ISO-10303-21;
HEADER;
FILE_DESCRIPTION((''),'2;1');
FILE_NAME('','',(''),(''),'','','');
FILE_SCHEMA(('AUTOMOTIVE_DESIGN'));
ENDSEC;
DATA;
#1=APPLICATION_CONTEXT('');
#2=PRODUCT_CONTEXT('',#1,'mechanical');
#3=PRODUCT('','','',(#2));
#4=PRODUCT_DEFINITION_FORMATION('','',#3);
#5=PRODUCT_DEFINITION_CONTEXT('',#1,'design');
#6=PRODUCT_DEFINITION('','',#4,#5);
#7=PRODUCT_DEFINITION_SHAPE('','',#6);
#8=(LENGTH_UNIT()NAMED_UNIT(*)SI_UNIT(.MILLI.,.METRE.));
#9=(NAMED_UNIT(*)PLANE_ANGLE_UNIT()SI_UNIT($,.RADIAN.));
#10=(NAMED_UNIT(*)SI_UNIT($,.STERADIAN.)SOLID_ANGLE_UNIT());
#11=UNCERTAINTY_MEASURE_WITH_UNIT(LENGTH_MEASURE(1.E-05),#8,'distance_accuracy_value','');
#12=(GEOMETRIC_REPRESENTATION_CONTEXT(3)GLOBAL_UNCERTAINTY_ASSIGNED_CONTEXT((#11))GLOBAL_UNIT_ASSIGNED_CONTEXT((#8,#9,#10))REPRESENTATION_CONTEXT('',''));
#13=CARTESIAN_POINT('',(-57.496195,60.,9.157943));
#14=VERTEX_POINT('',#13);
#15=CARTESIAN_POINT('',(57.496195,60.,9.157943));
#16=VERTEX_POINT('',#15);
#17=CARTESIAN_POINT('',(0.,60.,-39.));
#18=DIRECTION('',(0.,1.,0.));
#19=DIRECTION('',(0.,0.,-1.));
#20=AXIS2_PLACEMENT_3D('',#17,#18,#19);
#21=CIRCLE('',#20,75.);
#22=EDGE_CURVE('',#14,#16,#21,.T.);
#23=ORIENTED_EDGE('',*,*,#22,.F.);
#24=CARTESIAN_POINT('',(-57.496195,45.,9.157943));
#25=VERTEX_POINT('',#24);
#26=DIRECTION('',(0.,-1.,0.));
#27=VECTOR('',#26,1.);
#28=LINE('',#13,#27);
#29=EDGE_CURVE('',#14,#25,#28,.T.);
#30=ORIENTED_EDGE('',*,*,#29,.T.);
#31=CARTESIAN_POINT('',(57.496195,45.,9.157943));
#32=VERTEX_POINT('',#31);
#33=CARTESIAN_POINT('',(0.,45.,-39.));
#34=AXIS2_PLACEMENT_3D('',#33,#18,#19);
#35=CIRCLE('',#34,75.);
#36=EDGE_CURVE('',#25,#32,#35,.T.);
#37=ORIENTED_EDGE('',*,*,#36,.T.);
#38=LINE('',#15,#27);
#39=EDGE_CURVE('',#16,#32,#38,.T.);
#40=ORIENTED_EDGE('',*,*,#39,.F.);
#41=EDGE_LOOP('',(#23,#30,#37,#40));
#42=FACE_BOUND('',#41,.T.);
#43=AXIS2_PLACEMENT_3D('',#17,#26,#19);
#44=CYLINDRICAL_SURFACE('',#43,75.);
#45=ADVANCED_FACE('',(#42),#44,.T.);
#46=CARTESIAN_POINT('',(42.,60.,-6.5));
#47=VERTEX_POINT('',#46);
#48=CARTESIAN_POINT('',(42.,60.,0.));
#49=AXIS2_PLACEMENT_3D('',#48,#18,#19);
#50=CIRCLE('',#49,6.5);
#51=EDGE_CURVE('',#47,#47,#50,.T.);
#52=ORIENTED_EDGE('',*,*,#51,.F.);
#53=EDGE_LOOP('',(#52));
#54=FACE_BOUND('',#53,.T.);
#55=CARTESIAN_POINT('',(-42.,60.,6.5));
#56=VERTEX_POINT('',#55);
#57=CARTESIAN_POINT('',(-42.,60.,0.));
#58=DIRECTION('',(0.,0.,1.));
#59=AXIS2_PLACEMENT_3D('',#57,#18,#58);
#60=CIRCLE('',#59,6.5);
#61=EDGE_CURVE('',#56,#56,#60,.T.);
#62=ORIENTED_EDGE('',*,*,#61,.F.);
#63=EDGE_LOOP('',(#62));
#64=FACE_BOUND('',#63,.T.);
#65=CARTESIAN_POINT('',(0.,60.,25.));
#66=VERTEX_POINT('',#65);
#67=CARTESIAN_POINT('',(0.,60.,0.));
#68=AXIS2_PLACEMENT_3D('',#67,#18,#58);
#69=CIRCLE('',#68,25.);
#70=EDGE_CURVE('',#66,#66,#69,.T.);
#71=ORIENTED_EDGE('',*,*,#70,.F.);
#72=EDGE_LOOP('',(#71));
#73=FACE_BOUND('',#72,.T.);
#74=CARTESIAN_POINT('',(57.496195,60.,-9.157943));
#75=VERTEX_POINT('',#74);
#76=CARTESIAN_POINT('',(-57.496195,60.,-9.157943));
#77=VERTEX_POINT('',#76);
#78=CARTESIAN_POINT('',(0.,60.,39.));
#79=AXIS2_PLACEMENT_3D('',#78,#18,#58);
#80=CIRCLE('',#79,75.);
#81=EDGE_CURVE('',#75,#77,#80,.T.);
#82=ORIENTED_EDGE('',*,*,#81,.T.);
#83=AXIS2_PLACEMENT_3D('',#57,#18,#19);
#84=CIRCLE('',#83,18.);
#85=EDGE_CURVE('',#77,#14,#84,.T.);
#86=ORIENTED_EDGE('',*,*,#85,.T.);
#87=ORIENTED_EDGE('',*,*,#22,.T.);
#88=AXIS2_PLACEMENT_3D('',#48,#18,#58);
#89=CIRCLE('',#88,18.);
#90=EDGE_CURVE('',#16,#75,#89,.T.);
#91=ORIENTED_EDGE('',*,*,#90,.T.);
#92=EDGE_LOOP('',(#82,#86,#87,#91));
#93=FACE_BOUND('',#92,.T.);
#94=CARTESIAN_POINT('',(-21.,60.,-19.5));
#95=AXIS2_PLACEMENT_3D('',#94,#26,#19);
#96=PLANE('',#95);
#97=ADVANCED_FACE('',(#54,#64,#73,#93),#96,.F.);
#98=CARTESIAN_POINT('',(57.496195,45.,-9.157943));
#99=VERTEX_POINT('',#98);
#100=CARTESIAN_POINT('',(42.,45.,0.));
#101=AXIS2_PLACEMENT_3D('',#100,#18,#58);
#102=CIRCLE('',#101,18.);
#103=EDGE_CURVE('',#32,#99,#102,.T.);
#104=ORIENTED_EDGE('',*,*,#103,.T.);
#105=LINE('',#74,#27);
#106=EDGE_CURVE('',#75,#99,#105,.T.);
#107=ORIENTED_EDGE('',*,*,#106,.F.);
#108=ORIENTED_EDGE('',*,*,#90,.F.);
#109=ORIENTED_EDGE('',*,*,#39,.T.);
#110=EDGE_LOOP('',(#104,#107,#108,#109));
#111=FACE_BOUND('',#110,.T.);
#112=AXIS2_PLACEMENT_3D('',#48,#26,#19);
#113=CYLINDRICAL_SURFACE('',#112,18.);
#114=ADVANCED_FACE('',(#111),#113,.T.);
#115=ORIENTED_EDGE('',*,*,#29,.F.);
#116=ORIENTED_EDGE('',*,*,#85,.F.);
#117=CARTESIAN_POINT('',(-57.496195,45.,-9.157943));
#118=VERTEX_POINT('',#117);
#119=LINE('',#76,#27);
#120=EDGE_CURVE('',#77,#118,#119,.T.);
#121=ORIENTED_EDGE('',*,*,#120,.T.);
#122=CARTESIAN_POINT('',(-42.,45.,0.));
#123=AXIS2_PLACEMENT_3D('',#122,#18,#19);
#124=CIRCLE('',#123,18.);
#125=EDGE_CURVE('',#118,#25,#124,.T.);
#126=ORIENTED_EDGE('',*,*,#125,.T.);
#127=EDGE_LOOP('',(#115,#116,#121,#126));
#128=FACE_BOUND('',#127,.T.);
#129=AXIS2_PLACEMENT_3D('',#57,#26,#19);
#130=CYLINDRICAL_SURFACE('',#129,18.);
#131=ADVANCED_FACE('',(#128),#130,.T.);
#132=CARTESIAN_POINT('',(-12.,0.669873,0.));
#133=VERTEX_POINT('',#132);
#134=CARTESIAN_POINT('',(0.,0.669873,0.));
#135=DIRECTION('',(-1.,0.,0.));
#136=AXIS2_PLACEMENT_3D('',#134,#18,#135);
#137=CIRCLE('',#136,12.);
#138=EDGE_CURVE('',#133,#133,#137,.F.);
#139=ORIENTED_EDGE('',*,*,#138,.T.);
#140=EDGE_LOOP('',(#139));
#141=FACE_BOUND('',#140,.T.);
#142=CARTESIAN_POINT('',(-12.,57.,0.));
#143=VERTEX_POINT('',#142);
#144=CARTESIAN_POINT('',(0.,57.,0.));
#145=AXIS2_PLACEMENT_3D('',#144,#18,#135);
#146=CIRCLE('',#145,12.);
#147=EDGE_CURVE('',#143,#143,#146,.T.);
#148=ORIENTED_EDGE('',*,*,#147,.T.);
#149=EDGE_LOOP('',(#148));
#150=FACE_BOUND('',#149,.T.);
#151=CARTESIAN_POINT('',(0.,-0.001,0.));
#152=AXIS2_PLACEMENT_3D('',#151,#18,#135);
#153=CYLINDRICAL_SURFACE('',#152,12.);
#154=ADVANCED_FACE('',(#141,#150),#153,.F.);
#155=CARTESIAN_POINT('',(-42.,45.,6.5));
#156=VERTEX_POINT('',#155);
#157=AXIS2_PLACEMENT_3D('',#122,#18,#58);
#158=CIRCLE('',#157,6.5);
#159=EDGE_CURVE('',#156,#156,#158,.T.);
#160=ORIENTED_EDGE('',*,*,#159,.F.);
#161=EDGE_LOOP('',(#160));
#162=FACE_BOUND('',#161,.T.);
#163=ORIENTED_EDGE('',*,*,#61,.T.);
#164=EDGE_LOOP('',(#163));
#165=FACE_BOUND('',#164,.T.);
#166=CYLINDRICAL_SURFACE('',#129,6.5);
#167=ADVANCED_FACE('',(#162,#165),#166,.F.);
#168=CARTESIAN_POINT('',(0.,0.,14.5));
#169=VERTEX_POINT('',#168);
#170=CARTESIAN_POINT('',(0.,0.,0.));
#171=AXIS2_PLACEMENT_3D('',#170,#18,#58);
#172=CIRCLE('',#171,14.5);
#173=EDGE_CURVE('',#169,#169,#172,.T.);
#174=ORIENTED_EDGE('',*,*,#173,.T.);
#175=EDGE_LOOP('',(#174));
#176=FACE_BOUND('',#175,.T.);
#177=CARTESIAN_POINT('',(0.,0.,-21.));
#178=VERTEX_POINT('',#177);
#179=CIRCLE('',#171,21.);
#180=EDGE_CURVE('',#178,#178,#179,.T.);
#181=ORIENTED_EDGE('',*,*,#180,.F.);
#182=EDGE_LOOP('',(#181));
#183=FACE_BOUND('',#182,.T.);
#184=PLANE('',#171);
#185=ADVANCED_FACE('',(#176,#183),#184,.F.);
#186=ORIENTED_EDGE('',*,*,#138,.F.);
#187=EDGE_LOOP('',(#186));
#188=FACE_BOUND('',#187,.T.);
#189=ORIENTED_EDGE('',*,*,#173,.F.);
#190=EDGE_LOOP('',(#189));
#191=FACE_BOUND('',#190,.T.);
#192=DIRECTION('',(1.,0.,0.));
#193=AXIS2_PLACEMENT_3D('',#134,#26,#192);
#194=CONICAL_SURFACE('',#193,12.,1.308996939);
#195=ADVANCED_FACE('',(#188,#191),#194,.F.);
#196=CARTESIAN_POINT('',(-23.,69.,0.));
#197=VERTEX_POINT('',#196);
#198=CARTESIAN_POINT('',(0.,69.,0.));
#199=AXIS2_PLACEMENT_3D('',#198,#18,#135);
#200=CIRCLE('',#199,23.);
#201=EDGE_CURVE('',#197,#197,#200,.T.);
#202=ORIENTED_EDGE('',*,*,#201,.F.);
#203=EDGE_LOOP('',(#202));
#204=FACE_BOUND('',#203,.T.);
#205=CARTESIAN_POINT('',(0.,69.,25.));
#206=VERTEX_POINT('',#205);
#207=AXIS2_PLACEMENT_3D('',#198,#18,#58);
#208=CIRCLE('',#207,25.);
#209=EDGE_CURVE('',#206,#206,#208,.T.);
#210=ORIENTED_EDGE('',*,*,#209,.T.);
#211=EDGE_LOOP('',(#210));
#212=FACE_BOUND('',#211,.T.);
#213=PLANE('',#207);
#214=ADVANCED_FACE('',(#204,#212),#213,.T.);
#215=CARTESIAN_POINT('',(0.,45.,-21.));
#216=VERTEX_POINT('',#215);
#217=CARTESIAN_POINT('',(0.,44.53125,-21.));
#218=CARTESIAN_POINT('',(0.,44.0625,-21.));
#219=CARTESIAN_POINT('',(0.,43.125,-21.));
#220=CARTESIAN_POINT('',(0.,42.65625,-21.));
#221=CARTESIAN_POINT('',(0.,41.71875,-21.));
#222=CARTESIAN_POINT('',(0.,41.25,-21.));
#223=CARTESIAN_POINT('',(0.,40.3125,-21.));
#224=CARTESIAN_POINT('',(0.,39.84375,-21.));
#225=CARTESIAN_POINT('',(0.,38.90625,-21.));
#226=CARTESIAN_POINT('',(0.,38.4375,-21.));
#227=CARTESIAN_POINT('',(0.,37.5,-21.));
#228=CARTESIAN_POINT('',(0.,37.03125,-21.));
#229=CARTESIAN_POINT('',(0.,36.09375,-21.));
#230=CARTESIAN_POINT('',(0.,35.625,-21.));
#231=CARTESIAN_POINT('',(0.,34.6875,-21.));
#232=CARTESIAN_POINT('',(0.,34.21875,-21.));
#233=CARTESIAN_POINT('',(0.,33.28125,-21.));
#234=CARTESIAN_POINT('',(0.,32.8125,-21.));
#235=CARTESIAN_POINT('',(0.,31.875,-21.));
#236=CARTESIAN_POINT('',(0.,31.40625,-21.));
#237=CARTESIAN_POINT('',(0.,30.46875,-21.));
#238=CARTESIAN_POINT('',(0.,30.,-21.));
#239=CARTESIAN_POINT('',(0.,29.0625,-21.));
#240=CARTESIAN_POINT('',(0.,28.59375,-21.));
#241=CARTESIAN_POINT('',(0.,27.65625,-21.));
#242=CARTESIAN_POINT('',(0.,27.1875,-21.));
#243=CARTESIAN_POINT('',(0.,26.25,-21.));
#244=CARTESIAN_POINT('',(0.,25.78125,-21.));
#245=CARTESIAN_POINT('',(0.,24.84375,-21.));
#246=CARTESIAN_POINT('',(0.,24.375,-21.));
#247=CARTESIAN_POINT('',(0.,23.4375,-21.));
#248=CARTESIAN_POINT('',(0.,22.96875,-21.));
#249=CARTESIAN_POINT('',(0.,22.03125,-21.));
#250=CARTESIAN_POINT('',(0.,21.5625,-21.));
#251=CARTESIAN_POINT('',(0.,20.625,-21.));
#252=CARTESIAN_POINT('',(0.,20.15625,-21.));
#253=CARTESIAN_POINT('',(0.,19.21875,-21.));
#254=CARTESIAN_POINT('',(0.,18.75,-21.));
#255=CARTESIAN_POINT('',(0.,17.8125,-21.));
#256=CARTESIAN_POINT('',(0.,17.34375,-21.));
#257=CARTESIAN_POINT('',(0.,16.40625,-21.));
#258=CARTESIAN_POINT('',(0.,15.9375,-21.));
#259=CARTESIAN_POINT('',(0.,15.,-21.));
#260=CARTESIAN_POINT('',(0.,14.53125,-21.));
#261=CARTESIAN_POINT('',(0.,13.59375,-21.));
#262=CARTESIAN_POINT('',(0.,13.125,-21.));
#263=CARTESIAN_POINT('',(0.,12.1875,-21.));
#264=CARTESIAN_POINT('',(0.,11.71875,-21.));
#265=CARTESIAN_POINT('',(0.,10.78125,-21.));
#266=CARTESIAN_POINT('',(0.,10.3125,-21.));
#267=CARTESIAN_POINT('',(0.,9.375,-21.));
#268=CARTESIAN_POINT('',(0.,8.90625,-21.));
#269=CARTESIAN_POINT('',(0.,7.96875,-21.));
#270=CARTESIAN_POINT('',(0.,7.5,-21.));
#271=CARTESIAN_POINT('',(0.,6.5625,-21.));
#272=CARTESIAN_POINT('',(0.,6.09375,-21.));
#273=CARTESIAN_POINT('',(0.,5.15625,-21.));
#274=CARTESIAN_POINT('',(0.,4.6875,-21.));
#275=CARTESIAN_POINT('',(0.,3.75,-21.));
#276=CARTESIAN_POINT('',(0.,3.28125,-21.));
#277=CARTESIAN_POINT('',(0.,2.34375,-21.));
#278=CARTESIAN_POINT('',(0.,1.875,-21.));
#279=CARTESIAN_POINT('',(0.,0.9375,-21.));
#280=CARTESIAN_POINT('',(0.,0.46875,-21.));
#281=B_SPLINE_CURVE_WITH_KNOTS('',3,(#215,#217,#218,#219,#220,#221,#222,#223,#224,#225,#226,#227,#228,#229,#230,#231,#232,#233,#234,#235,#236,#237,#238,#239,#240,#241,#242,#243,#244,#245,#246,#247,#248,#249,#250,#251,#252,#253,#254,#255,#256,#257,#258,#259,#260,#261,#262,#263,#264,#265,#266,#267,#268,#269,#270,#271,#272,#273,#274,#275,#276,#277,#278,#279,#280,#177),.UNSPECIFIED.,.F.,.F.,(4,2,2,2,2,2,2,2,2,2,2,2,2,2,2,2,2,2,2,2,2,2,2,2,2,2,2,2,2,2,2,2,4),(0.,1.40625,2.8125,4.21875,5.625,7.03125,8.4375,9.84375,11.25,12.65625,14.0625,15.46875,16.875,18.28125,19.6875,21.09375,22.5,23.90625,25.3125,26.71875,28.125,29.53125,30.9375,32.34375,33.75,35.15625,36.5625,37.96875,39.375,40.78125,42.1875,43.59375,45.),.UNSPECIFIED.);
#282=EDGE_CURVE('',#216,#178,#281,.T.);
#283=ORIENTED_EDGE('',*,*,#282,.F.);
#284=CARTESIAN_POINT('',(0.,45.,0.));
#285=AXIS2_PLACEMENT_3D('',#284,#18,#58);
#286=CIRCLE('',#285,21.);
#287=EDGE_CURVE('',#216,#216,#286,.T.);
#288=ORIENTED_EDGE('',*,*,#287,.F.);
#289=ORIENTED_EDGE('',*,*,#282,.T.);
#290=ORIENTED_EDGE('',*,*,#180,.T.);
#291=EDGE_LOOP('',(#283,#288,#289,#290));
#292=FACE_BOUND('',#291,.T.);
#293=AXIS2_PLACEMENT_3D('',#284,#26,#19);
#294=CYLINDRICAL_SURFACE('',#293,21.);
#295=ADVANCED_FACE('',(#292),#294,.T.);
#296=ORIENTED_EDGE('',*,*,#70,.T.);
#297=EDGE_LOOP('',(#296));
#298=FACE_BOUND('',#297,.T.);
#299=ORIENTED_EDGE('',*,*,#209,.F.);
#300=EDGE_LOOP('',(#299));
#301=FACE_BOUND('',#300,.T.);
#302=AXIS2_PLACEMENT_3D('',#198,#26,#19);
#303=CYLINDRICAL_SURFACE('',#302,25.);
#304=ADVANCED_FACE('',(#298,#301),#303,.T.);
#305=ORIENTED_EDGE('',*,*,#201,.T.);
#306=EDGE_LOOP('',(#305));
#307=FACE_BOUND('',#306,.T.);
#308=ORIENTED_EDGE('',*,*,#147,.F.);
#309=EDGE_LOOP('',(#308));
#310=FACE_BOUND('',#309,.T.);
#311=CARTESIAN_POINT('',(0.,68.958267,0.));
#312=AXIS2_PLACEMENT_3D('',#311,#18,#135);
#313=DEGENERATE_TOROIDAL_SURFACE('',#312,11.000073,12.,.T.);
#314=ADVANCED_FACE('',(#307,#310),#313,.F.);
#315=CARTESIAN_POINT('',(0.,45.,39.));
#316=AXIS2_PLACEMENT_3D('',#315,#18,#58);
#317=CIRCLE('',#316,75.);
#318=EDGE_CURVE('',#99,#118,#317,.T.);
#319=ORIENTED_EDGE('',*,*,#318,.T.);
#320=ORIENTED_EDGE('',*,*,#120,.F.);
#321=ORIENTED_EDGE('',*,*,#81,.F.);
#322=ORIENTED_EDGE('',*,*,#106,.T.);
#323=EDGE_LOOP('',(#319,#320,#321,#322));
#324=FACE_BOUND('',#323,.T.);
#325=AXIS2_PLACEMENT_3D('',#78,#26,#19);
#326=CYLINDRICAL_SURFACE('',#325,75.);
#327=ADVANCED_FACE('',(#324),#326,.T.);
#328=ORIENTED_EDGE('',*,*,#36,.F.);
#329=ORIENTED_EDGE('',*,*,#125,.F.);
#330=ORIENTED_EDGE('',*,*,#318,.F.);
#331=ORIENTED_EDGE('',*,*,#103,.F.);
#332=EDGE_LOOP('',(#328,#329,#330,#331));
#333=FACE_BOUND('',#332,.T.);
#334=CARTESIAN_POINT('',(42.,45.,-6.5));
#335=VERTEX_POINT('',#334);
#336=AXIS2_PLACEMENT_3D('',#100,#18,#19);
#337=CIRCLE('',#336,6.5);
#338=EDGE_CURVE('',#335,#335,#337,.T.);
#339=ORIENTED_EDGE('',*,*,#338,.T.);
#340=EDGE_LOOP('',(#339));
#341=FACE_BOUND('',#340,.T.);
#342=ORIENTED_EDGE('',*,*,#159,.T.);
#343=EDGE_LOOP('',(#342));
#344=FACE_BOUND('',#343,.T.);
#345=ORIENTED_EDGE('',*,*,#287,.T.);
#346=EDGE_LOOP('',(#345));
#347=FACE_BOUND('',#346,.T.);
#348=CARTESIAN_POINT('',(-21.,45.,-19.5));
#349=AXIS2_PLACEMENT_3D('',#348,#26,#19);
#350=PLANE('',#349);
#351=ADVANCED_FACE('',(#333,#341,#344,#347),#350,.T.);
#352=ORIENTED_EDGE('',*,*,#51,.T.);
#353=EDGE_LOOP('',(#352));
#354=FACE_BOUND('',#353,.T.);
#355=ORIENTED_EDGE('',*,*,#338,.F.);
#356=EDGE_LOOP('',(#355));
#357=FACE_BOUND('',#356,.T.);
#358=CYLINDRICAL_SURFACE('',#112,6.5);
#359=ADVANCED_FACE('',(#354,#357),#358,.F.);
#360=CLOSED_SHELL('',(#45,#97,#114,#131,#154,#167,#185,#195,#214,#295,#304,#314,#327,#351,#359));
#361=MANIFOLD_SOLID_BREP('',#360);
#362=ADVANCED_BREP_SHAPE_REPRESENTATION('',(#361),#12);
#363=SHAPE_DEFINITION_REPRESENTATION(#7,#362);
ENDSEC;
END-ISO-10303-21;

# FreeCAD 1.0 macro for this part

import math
import FreeCAD as App
import Part
import Sketcher


def edges_at(feature, points):
    """Names of the edges that pass closest to the given points."""
    edges = feature.Shape.Edges
    near = lambda p: min(range(len(edges)), key=lambda i: edges[i].distToShape(Part.Vertex(*p))[0])
    return sorted({f"Edge{near(p) + 1}" for p in points})

doc = App.newDocument("Part")
params = doc.addObject("Spreadsheet::Sheet", "Params")
for row, (alias, value) in enumerate([
    ("sketch1_diameter", "42 mm"),
    ("pad1_length", "45 mm"),
    ("sketch2_diameter", "13 mm"),
    ("sketch2_radius", "18 mm"),
    ("sketch2_radius2", "75 mm"),
    ("pad2_length", "15 mm"),
    ("sketch3_diameter", "50 mm"),
    ("pad3_length", "9 mm"),
    ("sketch4_radius", "12 mm"),
    ("sketch4_width", "12 mm"),
    ("sketch4_width2", "23 mm"),
    ("groove_angle", "360 deg"),
    ("sketch5_diameter", "24 mm"),
    ("chamfer_size", "2.5 mm"),
    ("chamfer_size2", "0.669873 mm"),
], start=1):
    params.set(f"A{row}", alias)
    params.set(f"B{row}", "=" + value)
    params.setAlias(f"B{row}", alias)

body = doc.addObject("PartDesign::Body", "Body")

# Sketch on XZ plane
sketch1 = body.newObject("Sketcher::SketchObject", "Sketch")
sketch1.AttachmentSupport = (doc.getObject("XZ_Plane"), [""])
sketch1.MapMode = "FlatFace"
sketch1.addGeometry(Part.Circle(App.Vector(0, 0, 0), App.Vector(0, 0, 1), 21), False)
sketch1.addConstraint(Sketcher.Constraint("Coincident", 0, 3, -1, 1))
sketch1.addConstraint(Sketcher.Constraint("Diameter", 0, 42.0))
sketch1.setExpression("Constraints[1]", "Params.sketch1_diameter")
pad1 = body.newObject("PartDesign::Pad", "Pad")
pad1.Profile = sketch1
pad1.setExpression("Length", "Params.pad1_length")
pad1.Reversed = True

# Sketch on XZ plane
sketch2 = body.newObject("Sketcher::SketchObject", "Sketch001")
sketch2.AttachmentSupport = (doc.getObject("XZ_Plane"), [""])
sketch2.MapMode = "FlatFace"
sketch2.AttachmentOffset = App.Placement(App.Vector(0, 0, -45), App.Rotation())
sketch2.addGeometry(Part.ArcOfCircle(Part.Circle(App.Vector(-42, 0, 0), App.Vector(0, 0, 1), 18), math.radians(149.417757), math.radians(210.582243)), False)
sketch2.addGeometry(Part.ArcOfCircle(Part.Circle(App.Vector(0, -39, 0), App.Vector(0, 0, 1), 75), math.radians(39.949032), math.radians(140.050968)), False)
sketch2.addGeometry(Part.ArcOfCircle(Part.Circle(App.Vector(42, 0, 0), App.Vector(0, 0, 1), 18), math.radians(-30.582243), math.radians(30.582243)), False)
sketch2.addGeometry(Part.ArcOfCircle(Part.Circle(App.Vector(0, 39, 0), App.Vector(0, 0, 1), 75), math.radians(-140.050968), math.radians(-39.949032)), False)
sketch2.addGeometry(Part.Circle(App.Vector(42, 0, 0), App.Vector(0, 0, 1), 6.5), False)
sketch2.addGeometry(Part.Circle(App.Vector(-42, 0, 0), App.Vector(0, 0, 1), 6.5), False)
sketch2.addConstraint(Sketcher.Constraint("Coincident", 0, 1, 1, 2))
sketch2.addConstraint(Sketcher.Constraint("Coincident", 1, 1, 2, 2))
sketch2.addConstraint(Sketcher.Constraint("Coincident", 2, 1, 3, 2))
sketch2.addConstraint(Sketcher.Constraint("Coincident", 3, 1, 0, 2))
sketch2.addConstraint(Sketcher.Constraint("Coincident", 4, 3, 2, 3))
sketch2.addConstraint(Sketcher.Constraint("Coincident", 5, 3, 0, 3))
sketch2.addConstraint(Sketcher.Constraint("Equal", 0, 2))
sketch2.addConstraint(Sketcher.Constraint("Equal", 1, 3))
sketch2.addConstraint(Sketcher.Constraint("Equal", 4, 5))
sketch2.addConstraint(Sketcher.Constraint("Symmetric", 0, 3, 2, 3, -1, 1))
sketch2.addConstraint(Sketcher.Constraint("Symmetric", 1, 3, 3, 3, -1, 1))
sketch2.addConstraint(Sketcher.Constraint("Symmetric", 0, 1, 1, 1, -2))
sketch2.addConstraint(Sketcher.Constraint("Diameter", 4, 13.0))
sketch2.addConstraint(Sketcher.Constraint("Radius", 0, 18.0))
sketch2.addConstraint(Sketcher.Constraint("Radius", 1, 75.0))
sketch2.addConstraint(Sketcher.Constraint("DistanceX", 0, 3, -1, 1, 42.0))
sketch2.addConstraint(Sketcher.Constraint("DistanceY", 1, 3, -1, 1, 39.0))
sketch2.setExpression("Constraints[12]", "Params.sketch2_diameter")
sketch2.setExpression("Constraints[13]", "Params.sketch2_radius")
sketch2.setExpression("Constraints[14]", "Params.sketch2_radius2")
pad2 = body.newObject("PartDesign::Pad", "Pad001")
pad2.Profile = sketch2
pad2.setExpression("Length", "Params.pad2_length")
pad2.Reversed = True

# Sketch on XZ plane
sketch3 = body.newObject("Sketcher::SketchObject", "Sketch002")
sketch3.AttachmentSupport = (doc.getObject("XZ_Plane"), [""])
sketch3.MapMode = "FlatFace"
sketch3.AttachmentOffset = App.Placement(App.Vector(0, 0, -60), App.Rotation())
sketch3.addGeometry(Part.Circle(App.Vector(0, 0, 0), App.Vector(0, 0, 1), 25), False)
sketch3.addConstraint(Sketcher.Constraint("Coincident", 0, 3, -1, 1))
sketch3.addConstraint(Sketcher.Constraint("Diameter", 0, 50.0))
sketch3.setExpression("Constraints[1]", "Params.sketch3_diameter")
pad3 = body.newObject("PartDesign::Pad", "Pad002")
pad3.Profile = sketch3
pad3.setExpression("Length", "Params.pad3_length")
pad3.Reversed = True

# Sketch on XY plane
sketch4 = body.newObject("Sketcher::SketchObject", "Sketch003")
sketch4.AttachmentSupport = (doc.getObject("XY_Plane"), [""])
sketch4.MapMode = "FlatFace"
sketch4.addGeometry(Part.LineSegment(App.Vector(-12, 57, 0), App.Vector(0, 57, 0)), False)
sketch4.addGeometry(Part.LineSegment(App.Vector(0, 57, 0), App.Vector(0, 69, 0)), False)
sketch4.addGeometry(Part.LineSegment(App.Vector(0, 69, 0), App.Vector(-23, 69, 0)), False)
sketch4.addGeometry(Part.ArcOfCircle(Part.Circle(App.Vector(-11.000073, 68.958267, 0), App.Vector(0, 0, 1), 12), math.radians(179.800738), math.radians(265.220156)), False)
sketch4.addConstraint(Sketcher.Constraint("Coincident", 0, 2, 1, 1))
sketch4.addConstraint(Sketcher.Constraint("Coincident", 1, 2, 2, 1))
sketch4.addConstraint(Sketcher.Constraint("Coincident", 2, 2, 3, 1))
sketch4.addConstraint(Sketcher.Constraint("Coincident", 3, 2, 0, 1))
sketch4.addConstraint(Sketcher.Constraint("Horizontal", 0))
sketch4.addConstraint(Sketcher.Constraint("Vertical", 1))
sketch4.addConstraint(Sketcher.Constraint("Horizontal", 2))
sketch4.addConstraint(Sketcher.Constraint("PointOnObject", 0, 2, -2))
sketch4.addConstraint(Sketcher.Constraint("Equal", 0, 1))
sketch4.addConstraint(Sketcher.Constraint("Radius", 3, 12.0))
sketch4.addConstraint(Sketcher.Constraint("DistanceX", 0, 1, 0, 2, 12.0))
sketch4.addConstraint(Sketcher.Constraint("DistanceX", 2, 2, 2, 1, 23.0))
sketch4.addConstraint(Sketcher.Constraint("DistanceY", -1, 1, 0, 2, 57.0))
sketch4.setExpression("Constraints[9]", "Params.sketch4_radius")
sketch4.setExpression("Constraints[10]", "Params.sketch4_width")
sketch4.setExpression("Constraints[11]", "Params.sketch4_width2")
groove = body.newObject("PartDesign::Groove", "Groove")
groove.Profile = sketch4
groove.ReferenceAxis = (sketch4, ["V_Axis"])
groove.setExpression("Angle", "Params.groove_angle")

# Sketch on XZ plane
sketch5 = body.newObject("Sketcher::SketchObject", "Sketch004")
sketch5.AttachmentSupport = (doc.getObject("XZ_Plane"), [""])
sketch5.MapMode = "FlatFace"
sketch5.AttachmentOffset = App.Placement(App.Vector(0, 0, -57), App.Rotation())
sketch5.addGeometry(Part.Circle(App.Vector(0, 0, 0), App.Vector(0, 0, 1), 12), False)
sketch5.addConstraint(Sketcher.Constraint("Coincident", 0, 3, -1, 1))
sketch5.addConstraint(Sketcher.Constraint("Diameter", 0, 24.0))
sketch5.setExpression("Constraints[1]", "Params.sketch5_diameter")
pocket1 = body.newObject("PartDesign::Pocket", "Pocket")
pocket1.Profile = sketch5
pocket1.Type = "UpToFirst"
pocket1.Reversed = True
doc.recompute()

chamfer = body.newObject("PartDesign::Chamfer", "Chamfer")
chamfer.Base = (pocket1, edges_at(pocket1, [(12, 0, 0)]))
chamfer.ChamferType = "Two distances"
chamfer.setExpression("Size", "Params.chamfer_size")
chamfer.setExpression("Size2", "Params.chamfer_size2")

doc.recompute()
